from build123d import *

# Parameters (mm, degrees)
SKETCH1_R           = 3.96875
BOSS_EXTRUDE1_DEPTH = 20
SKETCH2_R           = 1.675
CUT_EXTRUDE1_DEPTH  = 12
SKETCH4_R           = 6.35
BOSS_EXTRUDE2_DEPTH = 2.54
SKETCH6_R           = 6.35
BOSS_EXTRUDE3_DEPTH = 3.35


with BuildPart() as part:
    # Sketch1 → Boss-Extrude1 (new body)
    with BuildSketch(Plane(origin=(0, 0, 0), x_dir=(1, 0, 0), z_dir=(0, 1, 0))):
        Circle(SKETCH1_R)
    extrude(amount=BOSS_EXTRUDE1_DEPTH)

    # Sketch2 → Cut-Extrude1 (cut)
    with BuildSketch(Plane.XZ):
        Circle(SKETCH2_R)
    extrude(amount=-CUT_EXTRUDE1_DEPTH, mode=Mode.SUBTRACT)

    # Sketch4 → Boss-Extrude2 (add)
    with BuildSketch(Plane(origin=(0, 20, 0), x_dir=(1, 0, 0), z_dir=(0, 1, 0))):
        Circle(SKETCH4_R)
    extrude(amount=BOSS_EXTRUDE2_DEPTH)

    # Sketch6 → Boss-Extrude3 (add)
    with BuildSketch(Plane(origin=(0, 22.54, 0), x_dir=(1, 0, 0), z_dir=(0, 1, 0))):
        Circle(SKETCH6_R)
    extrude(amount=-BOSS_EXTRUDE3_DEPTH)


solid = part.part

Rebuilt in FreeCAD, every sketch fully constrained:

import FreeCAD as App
import Part
import Sketcher

V = App.Vector
Q = App.Units.Quantity

doc = App.newDocument("Part")
body = doc.addObject("PartDesign::Body", "Body")

# Sketch on XZ plane
sketch1 = doc.addObject("Sketcher::SketchObject", "Sketch")
body.addObject(sketch1)
sketch1.AttachmentSupport = (doc.XZ_Plane, [""])
sketch1.MapMode = "FlatFace"
sketch1.addGeometry(Part.Circle(V(0, 0, 0), V(0, 0, 1), 4), False)
sketch1.addConstraint(Sketcher.Constraint("Coincident", 0, 3, -1, 1))
sketch1.addConstraint(Sketcher.Constraint("Diameter", 0, Q("0.3125 in")))
pad1 = doc.addObject("PartDesign::Pad", "Pad")
body.addObject(pad1)
pad1.Profile = sketch1
pad1.Length = 20
pad1.Reversed = True

# Sketch on XZ plane
sketch2 = doc.addObject("Sketcher::SketchObject", "Sketch001")
body.addObject(sketch2)
sketch2.AttachmentSupport = (doc.XZ_Plane, [""])
sketch2.MapMode = "FlatFace"
sketch2.addGeometry(Part.Circle(V(0, 0, 0), V(0, 0, 1), 1.7), False)
sketch2.addConstraint(Sketcher.Constraint("Coincident", 0, 3, -1, 1))
sketch2.addConstraint(Sketcher.Constraint("Diameter", 0, Q("3.35 mm")))
pocket1 = doc.addObject("PartDesign::Pocket", "Pocket")
body.addObject(pocket1)
pocket1.Profile = sketch2
pocket1.Length = 12

# Sketch on XZ plane
sketch3 = doc.addObject("Sketcher::SketchObject", "Sketch002")
body.addObject(sketch3)
sketch3.AttachmentSupport = (doc.XZ_Plane, [""])
sketch3.MapMode = "FlatFace"
sketch3.AttachmentOffset = App.Placement(V(0, 0, -20), App.Rotation())
sketch3.addGeometry(Part.Circle(V(0, 0, 0), V(0, 0, 1), 6), False)
sketch3.addConstraint(Sketcher.Constraint("Coincident", 0, 3, -1, 1))
sketch3.addConstraint(Sketcher.Constraint("Diameter", 0, Q("0.5 in")))
pad2 = doc.addObject("PartDesign::Pad", "Pad001")
body.addObject(pad2)
pad2.Profile = sketch3
pad2.Length = Q("0.1 in")
pad2.Reversed = True

# Sketch on XZ plane
sketch4 = doc.addObject("Sketcher::SketchObject", "Sketch003")
body.addObject(sketch4)
sketch4.AttachmentSupport = (doc.XZ_Plane, [""])
sketch4.MapMode = "FlatFace"
sketch4.AttachmentOffset = App.Placement(V(0, 0, -22.54), App.Rotation())
sketch4.addGeometry(Part.Circle(V(0, 0, 0), V(0, 0, 1), 6), False)
sketch4.addConstraint(Sketcher.Constraint("Coincident", 0, 3, -1, 1))
sketch4.addConstraint(Sketcher.Constraint("Diameter", 0, Q("0.5 in")))
pad3 = doc.addObject("PartDesign::Pad", "Pad002")
body.addObject(pad3)
pad3.Profile = sketch4
pad3.Length = 3.35

doc.recompute()
